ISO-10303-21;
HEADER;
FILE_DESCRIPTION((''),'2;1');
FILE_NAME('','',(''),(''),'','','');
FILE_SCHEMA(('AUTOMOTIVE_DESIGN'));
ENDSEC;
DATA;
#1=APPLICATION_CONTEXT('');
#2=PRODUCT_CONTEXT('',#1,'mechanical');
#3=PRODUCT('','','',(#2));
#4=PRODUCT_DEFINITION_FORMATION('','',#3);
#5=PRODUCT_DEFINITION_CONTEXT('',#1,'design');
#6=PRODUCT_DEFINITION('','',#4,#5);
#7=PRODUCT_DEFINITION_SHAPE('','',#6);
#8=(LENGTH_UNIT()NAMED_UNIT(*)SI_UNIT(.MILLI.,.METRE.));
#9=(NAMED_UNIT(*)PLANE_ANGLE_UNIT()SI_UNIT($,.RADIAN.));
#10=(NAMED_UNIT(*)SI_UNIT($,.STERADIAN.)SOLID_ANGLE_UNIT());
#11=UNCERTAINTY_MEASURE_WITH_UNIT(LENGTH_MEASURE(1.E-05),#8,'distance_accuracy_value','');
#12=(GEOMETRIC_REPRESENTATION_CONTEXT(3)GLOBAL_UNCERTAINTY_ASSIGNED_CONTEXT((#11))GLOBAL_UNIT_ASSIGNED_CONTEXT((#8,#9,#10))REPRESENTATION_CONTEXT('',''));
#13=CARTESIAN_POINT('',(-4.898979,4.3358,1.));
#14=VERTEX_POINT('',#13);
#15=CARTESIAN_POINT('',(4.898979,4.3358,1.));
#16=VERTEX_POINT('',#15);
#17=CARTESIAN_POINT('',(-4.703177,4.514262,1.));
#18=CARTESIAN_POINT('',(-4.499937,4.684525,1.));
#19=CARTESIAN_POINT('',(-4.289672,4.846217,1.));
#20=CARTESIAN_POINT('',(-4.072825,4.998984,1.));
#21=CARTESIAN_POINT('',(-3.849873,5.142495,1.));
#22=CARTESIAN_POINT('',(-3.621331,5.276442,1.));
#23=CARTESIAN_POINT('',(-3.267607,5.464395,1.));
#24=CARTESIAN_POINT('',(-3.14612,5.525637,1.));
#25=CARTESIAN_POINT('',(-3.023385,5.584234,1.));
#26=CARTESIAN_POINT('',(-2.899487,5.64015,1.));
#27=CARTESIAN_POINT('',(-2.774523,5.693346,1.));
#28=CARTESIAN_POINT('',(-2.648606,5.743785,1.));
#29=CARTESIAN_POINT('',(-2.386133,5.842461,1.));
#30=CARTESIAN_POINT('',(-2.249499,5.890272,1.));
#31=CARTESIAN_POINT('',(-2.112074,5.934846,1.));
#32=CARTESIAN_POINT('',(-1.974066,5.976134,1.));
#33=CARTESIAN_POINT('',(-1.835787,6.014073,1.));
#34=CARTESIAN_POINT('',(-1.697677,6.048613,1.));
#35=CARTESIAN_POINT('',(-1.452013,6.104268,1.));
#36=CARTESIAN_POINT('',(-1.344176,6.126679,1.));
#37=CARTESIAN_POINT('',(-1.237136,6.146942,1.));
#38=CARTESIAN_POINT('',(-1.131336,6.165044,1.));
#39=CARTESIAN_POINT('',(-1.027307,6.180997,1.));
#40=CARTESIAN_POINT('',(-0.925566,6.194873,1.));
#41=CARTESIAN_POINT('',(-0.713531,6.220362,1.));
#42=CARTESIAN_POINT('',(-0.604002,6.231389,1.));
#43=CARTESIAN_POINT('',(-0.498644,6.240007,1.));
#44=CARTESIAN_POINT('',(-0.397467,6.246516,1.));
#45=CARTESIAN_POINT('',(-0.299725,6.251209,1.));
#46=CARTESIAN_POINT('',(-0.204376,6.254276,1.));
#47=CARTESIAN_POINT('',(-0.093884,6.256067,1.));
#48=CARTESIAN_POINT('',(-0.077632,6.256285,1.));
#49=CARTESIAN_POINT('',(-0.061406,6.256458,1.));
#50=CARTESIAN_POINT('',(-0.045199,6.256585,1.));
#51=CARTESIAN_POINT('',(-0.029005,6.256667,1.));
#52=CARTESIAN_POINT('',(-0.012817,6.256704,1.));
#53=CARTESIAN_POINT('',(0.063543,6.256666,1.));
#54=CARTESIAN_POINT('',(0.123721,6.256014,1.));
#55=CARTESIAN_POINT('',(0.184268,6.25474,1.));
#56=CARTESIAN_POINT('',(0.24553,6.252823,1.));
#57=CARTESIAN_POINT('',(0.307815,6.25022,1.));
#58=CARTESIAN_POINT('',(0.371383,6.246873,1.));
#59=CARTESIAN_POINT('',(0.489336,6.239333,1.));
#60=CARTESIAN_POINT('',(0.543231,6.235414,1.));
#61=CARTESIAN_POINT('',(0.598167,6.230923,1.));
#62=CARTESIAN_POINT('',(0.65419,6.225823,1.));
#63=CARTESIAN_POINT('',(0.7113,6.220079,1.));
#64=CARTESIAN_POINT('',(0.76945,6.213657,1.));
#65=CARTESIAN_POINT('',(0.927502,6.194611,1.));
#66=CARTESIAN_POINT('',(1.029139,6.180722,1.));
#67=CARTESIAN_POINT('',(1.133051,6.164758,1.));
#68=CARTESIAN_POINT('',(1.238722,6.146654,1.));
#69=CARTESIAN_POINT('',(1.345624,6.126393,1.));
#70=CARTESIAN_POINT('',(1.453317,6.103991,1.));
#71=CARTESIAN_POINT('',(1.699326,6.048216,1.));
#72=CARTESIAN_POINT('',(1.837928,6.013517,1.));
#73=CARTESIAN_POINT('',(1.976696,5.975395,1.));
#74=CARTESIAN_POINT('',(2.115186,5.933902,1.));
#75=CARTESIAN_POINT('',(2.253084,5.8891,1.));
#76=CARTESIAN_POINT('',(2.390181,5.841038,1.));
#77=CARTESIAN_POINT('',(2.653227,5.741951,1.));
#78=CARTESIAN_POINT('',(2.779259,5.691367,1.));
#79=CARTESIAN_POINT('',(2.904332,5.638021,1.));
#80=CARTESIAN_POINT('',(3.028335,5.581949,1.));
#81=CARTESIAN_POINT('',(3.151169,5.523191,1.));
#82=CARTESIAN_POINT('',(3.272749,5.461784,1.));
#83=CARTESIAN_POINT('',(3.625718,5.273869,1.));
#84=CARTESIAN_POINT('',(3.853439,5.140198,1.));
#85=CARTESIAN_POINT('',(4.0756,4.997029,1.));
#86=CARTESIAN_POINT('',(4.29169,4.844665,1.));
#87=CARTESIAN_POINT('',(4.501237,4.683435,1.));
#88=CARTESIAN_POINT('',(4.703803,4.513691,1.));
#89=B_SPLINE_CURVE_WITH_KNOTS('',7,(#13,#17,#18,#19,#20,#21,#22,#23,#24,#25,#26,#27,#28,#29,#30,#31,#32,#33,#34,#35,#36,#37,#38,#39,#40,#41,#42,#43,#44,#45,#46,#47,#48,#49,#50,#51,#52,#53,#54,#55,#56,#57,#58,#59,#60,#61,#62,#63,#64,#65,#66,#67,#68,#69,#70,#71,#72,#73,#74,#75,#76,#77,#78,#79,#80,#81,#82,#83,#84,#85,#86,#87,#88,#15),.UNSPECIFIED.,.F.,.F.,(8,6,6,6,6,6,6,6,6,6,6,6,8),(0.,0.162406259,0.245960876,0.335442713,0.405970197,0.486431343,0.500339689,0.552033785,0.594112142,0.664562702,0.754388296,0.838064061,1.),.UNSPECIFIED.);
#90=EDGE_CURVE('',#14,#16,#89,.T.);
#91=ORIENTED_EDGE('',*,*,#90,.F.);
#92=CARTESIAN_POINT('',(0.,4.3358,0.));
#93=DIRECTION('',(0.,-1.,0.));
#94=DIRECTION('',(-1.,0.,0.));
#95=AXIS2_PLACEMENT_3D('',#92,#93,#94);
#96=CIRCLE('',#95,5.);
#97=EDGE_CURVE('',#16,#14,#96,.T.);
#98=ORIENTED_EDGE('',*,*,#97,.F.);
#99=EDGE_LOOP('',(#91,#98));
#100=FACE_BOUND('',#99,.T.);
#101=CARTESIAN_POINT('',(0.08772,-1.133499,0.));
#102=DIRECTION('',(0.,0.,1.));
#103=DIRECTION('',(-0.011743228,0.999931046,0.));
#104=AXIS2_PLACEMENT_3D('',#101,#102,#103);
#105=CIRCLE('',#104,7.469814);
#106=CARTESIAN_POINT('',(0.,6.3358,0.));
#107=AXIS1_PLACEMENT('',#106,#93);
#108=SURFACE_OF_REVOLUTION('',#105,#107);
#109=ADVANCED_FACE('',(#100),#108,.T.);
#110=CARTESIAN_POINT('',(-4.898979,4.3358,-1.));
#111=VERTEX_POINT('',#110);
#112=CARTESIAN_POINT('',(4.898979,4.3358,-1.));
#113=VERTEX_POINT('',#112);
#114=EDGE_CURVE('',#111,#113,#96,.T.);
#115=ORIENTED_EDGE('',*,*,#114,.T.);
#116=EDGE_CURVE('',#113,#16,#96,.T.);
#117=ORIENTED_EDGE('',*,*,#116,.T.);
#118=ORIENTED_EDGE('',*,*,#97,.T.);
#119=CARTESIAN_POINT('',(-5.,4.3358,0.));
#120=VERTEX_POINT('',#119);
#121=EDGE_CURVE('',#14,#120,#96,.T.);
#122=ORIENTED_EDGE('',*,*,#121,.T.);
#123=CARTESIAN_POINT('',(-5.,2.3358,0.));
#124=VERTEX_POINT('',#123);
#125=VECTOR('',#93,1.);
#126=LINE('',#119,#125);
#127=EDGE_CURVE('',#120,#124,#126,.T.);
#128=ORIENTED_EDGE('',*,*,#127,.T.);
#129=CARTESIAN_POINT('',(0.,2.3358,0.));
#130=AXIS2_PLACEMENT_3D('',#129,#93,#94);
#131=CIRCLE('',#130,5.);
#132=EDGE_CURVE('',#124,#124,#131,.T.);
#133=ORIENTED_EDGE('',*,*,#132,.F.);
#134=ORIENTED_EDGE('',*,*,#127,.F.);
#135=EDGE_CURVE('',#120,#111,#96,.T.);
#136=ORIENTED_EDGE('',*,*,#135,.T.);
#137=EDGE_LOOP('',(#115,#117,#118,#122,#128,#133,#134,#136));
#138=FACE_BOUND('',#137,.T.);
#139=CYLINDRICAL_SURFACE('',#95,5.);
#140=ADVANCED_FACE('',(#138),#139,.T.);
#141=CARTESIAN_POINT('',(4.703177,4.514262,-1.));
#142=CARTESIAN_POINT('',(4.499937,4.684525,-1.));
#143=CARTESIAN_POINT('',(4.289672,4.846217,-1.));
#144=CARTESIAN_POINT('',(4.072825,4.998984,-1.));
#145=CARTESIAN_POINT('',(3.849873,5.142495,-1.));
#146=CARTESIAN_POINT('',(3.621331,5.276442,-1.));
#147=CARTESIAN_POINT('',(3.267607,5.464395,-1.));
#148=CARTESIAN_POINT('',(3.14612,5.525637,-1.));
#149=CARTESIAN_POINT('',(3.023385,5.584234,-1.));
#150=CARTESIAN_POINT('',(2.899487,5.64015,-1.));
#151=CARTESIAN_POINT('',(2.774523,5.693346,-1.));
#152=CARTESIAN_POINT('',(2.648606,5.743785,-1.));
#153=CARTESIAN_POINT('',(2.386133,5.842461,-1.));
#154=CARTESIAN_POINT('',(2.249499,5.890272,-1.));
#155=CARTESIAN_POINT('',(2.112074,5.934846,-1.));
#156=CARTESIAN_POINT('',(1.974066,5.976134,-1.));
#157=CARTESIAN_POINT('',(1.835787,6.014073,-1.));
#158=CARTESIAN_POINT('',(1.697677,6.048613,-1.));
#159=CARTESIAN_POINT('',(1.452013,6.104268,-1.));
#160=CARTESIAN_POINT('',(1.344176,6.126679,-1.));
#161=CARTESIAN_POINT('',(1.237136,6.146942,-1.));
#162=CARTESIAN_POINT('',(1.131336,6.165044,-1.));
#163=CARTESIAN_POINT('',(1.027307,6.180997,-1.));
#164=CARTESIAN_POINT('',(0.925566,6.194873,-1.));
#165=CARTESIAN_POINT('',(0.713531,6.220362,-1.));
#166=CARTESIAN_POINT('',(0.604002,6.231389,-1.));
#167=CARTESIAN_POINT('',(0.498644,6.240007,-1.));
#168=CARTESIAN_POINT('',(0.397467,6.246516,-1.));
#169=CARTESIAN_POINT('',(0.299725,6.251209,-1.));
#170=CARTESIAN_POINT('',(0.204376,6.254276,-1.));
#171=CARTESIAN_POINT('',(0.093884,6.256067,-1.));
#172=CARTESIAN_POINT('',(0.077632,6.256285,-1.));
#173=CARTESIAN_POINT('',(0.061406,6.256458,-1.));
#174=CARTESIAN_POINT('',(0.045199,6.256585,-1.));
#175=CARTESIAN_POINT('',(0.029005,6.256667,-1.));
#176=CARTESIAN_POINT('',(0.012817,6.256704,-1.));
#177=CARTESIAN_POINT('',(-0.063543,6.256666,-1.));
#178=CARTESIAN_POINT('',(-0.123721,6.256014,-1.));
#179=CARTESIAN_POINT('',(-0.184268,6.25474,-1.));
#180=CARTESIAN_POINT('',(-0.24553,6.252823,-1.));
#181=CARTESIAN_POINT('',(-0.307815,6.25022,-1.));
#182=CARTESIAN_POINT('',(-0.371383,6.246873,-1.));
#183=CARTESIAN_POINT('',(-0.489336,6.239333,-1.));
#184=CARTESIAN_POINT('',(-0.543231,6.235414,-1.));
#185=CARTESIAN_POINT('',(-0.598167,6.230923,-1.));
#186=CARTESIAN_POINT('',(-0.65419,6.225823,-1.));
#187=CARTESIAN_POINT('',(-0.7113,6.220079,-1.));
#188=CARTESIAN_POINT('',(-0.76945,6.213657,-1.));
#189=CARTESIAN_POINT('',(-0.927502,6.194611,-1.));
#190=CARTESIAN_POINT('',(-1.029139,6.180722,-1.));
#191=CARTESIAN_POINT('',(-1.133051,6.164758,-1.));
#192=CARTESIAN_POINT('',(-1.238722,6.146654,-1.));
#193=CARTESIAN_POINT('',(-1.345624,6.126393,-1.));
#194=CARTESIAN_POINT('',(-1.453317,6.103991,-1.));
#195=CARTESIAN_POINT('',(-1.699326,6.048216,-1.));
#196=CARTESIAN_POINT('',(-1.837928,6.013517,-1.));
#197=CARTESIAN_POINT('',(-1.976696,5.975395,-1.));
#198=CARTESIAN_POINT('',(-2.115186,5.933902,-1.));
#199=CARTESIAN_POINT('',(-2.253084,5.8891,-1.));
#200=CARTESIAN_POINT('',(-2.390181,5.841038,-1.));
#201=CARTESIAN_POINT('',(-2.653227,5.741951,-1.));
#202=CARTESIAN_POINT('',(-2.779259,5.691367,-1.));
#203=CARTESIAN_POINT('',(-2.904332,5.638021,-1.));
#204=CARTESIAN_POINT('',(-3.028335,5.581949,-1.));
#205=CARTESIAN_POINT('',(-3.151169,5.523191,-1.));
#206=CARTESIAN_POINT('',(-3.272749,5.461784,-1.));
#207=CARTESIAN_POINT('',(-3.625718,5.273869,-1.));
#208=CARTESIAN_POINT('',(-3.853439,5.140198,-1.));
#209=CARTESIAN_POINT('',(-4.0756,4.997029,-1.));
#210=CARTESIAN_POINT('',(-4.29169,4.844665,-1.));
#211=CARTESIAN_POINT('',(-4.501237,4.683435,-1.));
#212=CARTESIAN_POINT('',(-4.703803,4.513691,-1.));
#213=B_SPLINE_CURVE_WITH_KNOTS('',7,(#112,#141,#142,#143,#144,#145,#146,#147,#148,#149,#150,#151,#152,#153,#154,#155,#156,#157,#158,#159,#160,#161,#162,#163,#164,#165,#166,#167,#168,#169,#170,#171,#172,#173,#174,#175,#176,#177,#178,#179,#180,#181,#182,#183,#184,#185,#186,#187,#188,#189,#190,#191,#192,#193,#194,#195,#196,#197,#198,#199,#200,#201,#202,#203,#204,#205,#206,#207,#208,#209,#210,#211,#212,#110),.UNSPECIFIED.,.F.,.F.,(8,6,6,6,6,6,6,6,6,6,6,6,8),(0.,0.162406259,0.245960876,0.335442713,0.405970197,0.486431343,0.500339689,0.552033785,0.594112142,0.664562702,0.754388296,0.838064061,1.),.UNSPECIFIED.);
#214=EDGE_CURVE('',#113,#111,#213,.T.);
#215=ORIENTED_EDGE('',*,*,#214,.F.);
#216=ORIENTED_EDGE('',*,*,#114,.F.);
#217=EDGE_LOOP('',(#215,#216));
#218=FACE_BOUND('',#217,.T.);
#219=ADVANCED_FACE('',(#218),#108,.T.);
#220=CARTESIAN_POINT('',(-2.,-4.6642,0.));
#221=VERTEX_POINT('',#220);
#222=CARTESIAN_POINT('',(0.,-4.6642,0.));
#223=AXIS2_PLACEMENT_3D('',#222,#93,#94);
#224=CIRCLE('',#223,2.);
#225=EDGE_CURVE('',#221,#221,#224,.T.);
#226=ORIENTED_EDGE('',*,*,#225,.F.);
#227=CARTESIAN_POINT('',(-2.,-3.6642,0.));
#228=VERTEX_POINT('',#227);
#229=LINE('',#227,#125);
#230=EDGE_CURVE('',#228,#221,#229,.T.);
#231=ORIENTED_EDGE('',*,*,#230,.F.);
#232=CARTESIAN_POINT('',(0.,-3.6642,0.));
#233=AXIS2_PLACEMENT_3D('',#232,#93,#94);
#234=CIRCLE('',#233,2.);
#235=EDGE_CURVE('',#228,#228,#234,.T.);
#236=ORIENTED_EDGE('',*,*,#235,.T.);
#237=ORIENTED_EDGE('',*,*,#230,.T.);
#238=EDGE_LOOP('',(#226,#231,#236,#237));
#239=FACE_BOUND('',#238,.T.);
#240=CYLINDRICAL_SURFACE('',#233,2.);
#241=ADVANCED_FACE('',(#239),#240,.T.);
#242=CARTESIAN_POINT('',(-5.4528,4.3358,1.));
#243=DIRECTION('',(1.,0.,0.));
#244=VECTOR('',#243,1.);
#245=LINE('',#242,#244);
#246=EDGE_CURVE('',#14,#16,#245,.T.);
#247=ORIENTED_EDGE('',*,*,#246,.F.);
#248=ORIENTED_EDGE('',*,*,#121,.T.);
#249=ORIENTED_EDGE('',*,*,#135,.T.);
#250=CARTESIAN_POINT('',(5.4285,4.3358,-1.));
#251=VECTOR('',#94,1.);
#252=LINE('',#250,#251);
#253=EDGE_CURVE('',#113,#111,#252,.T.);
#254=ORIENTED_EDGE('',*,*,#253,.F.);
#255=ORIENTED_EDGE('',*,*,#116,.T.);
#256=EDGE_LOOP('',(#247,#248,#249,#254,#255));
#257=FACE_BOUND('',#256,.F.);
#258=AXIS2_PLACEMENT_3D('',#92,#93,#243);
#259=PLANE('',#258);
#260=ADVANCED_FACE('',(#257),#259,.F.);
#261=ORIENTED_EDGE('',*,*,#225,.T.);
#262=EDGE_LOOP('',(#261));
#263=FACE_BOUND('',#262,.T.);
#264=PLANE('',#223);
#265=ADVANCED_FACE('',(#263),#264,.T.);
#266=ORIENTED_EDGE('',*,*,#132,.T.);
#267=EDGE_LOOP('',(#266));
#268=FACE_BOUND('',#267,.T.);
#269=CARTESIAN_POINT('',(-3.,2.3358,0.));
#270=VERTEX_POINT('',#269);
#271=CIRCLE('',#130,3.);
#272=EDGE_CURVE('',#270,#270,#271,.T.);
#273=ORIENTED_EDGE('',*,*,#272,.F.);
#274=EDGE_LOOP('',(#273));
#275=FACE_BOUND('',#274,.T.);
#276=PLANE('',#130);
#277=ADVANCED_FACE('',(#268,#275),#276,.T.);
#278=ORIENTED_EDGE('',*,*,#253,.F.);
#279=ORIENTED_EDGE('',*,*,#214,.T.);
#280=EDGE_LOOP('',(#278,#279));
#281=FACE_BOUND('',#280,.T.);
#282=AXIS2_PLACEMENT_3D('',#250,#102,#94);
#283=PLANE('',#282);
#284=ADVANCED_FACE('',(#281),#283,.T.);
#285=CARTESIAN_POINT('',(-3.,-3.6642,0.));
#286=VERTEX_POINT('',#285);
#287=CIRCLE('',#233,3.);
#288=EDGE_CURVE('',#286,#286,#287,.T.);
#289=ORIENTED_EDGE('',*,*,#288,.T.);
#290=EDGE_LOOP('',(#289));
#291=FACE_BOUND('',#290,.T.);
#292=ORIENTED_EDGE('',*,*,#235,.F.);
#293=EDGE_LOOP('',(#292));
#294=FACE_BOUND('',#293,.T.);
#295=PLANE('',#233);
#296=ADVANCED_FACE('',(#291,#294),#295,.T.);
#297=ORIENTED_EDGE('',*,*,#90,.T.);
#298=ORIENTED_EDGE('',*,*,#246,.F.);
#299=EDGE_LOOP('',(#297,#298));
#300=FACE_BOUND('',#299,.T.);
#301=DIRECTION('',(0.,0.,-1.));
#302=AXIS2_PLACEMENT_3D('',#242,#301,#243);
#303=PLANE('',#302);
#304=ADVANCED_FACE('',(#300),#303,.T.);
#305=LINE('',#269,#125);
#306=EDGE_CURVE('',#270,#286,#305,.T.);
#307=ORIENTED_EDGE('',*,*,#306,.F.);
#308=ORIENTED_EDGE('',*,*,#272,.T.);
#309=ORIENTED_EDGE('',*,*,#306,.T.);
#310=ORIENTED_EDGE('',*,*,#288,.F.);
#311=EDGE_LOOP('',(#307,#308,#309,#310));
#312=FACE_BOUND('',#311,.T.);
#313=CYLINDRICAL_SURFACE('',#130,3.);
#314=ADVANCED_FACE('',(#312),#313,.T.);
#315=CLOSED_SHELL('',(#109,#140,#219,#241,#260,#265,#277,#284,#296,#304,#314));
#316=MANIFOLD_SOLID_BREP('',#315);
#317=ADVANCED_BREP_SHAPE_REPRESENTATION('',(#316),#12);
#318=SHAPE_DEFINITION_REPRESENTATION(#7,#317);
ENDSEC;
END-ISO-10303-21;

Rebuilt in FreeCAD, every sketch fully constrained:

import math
import FreeCAD as App
import Part
import Sketcher
Q = App.Units.Quantity

doc = App.newDocument("Part")
body = doc.addObject("PartDesign::Body", "Body")

# Sketch on XY plane
sketch1 = body.newObject("Sketcher::SketchObject", "Sketch")
sketch1.AttachmentSupport = (doc.getObject("XY_Plane"), [""])
sketch1.MapMode = "FlatFace"
sketch1.addGeometry(Part.ArcOfCircle(Part.Circle(App.Vector(0.1, -1.1, 0), App.Vector(0, 0, 1), 7.5), math.radians(91), math.radians(133)), False)
sketch1.addGeometry(Part.LineSegment(App.Vector(-5, 4.3, 0), App.Vector(-5, 2.3, 0)), False)
sketch1.addGeometry(Part.LineSegment(App.Vector(-5, 2.3, 0), App.Vector(-3, 2.3, 0)), False)
sketch1.addGeometry(Part.LineSegment(App.Vector(-3, 2.3, 0), App.Vector(-3, -3.7, 0)), False)
sketch1.addGeometry(Part.LineSegment(App.Vector(-3, -3.7, 0), App.Vector(-2, -3.7, 0)), False)
sketch1.addGeometry(Part.LineSegment(App.Vector(-2, -3.7, 0), App.Vector(-2, -4.7, 0)), False)
sketch1.addGeometry(Part.LineSegment(App.Vector(-2, -4.7, 0), App.Vector(0, -4.7, 0)), False)
sketch1.addGeometry(Part.LineSegment(App.Vector(0, -4.7, 0), App.Vector(0, 6.3, 0)), False)
sketch1.addConstraint(Sketcher.Constraint("Coincident", 0, 2, 1, 1))
sketch1.addConstraint(Sketcher.Constraint("Coincident", 1, 2, 2, 1))
sketch1.addConstraint(Sketcher.Constraint("Coincident", 2, 2, 3, 1))
sketch1.addConstraint(Sketcher.Constraint("Coincident", 3, 2, 4, 1))
sketch1.addConstraint(Sketcher.Constraint("Coincident", 4, 2, 5, 1))
sketch1.addConstraint(Sketcher.Constraint("Coincident", 5, 2, 6, 1))
sketch1.addConstraint(Sketcher.Constraint("Coincident", 6, 2, 7, 1))
sketch1.addConstraint(Sketcher.Constraint("Coincident", 7, 2, 0, 1))
sketch1.addConstraint(Sketcher.Constraint("Vertical", 1))
sketch1.addConstraint(Sketcher.Constraint("Horizontal", 2))
sketch1.addConstraint(Sketcher.Constraint("Vertical", 3))
sketch1.addConstraint(Sketcher.Constraint("Horizontal", 4))
sketch1.addConstraint(Sketcher.Constraint("Vertical", 5))
sketch1.addConstraint(Sketcher.Constraint("Horizontal", 6))
sketch1.addConstraint(Sketcher.Constraint("Vertical", 7))
sketch1.addConstraint(Sketcher.Constraint("PointOnObject", 6, 2, -2))
sketch1.addConstraint(Sketcher.Constraint("Equal", 2, 6))
sketch1.addConstraint(Sketcher.Constraint("Equal", 6, 1))
sketch1.addConstraint(Sketcher.Constraint("Equal", 4, 5))
sketch1.addConstraint(Sketcher.Constraint("DistanceX", 2, 1, 2, 2, Q("2 mm")))
sketch1.addConstraint(Sketcher.Constraint("DistanceX", 4, 1, 4, 2, Q("1 mm")))
sketch1.addConstraint(Sketcher.Constraint("DistanceY", 3, 2, 3, 1, Q("6 mm")))
sketch1.addConstraint(Sketcher.Constraint("DistanceY", 0, 2, 7, 2, Q("2 mm")))
sketch1.addConstraint(Sketcher.Constraint("Radius", 0, Q("7.4697 mm")))
sketch1.addConstraint(Sketcher.Constraint("DistanceY", 0, 3, -1, 1, Q("1.1334 mm")))
revolution = body.newObject("PartDesign::Revolution", "Revolution")
revolution.Profile = sketch1
revolution.ReferenceAxis = (sketch1, ["V_Axis"])
revolution.Angle = 360

# Sketch on XZ plane
sketch2 = body.newObject("Sketcher::SketchObject", "Sketch001")
sketch2.AttachmentSupport = (doc.getObject("XZ_Plane"), [""])
sketch2.MapMode = "FlatFace"
sketch2.AttachmentOffset = App.Placement(App.Vector(0, 0, -4.3358), App.Rotation())
sketch2.addGeometry(Part.LineSegment(App.Vector(5.4, 1, 0), App.Vector(-5.5, 1, 0)), False)
sketch2.addGeometry(Part.LineSegment(App.Vector(-5.5, 1, 0), App.Vector(-5.5, -1, 0)), False)
sketch2.addGeometry(Part.LineSegment(App.Vector(-5.5, -1, 0), App.Vector(5.4, -1, 0)), False)
sketch2.addGeometry(Part.LineSegment(App.Vector(5.4, -1, 0), App.Vector(5.4, 1, 0)), False)
sketch2.addConstraint(Sketcher.Constraint("Coincident", 0, 2, 1, 1))
sketch2.addConstraint(Sketcher.Constraint("Coincident", 1, 2, 2, 1))
sketch2.addConstraint(Sketcher.Constraint("Coincident", 2, 2, 3, 1))
sketch2.addConstraint(Sketcher.Constraint("Coincident", 3, 2, 0, 1))
sketch2.addConstraint(Sketcher.Constraint("Horizontal", 0))
sketch2.addConstraint(Sketcher.Constraint("Vertical", 1))
sketch2.addConstraint(Sketcher.Constraint("Horizontal", 2))
sketch2.addConstraint(Sketcher.Constraint("Vertical", 3))
sketch2.addConstraint(Sketcher.Constraint("DistanceY", 1, 2, 1, 1, Q("2 mm")))
sketch2.addConstraint(Sketcher.Constraint("DistanceY", -1, 1, 0, 2, Q("1 mm")))
sketch2.addConstraint(Sketcher.Constraint("DistanceX", 0, 2, 0, 1, Q("10.8813 mm")))
sketch2.addConstraint(Sketcher.Constraint("DistanceX", 0, 2, -1, 1, Q("5.4528 mm")))
pocket1 = body.newObject("PartDesign::Pocket", "Pocket")
pocket1.Profile = sketch2
pocket1.Length = 10

doc.recompute()
